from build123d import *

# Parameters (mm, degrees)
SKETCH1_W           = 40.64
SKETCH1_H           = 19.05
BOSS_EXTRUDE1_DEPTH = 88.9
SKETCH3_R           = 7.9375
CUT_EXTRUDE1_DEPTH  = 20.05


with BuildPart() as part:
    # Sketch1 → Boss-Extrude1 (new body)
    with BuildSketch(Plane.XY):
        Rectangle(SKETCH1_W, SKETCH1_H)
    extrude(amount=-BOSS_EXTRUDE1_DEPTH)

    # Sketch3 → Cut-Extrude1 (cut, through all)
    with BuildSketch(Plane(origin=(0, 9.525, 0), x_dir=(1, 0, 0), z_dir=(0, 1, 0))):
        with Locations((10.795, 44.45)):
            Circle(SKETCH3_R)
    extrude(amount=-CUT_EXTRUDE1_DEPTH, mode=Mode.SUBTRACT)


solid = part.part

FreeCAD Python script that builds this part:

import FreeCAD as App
import Part
import Sketcher

V = App.Vector
Q = App.Units.Quantity


def add_polygon(sketch, points):
    """Adds a closed chain of lines whose ends are joined by coincident constraints."""
    first, n = sketch.GeometryCount, len(points)
    for a, b in zip(points, points[1:] + points[:1]):
        sketch.addGeometry(Part.LineSegment(App.Vector(*a, 0), App.Vector(*b, 0)), False)
    for i in range(n):
        sketch.addConstraint(Sketcher.Constraint("Coincident", first + i, 2, first + (i + 1) % n, 1))

doc = App.newDocument("Part")
body = doc.addObject("PartDesign::Body", "Body")

# Sketch on XY plane
sketch1 = doc.addObject("Sketcher::SketchObject", "Sketch")
body.addObject(sketch1)
sketch1.AttachmentSupport = (doc.XY_Plane, [""])
sketch1.MapMode = "FlatFace"
add_polygon(sketch1, [(-20, 10), (-20, -10), (20, -10), (20, 10)])  # lines 0-3
sketch1.addConstraint([
    Sketcher.Constraint("Vertical", 0),
    Sketcher.Constraint("Horizontal", 1),
    Sketcher.Constraint("Vertical", 2),
    Sketcher.Constraint("Horizontal", 3),
    Sketcher.Constraint("Symmetric", 0, 2, 2, 2, -1, 1),
    Sketcher.Constraint("DistanceX", 1, 1, 1, 2, Q("1.6 in")),
    Sketcher.Constraint("DistanceY", 0, 2, 0, 1, Q("0.75 in")),
])
pad1 = doc.addObject("PartDesign::Pad", "Pad")
body.addObject(pad1)
pad1.Profile = sketch1
pad1.Length = Q("3.5 in")
pad1.Reversed = True

# Sketch on XZ plane
sketch2 = doc.addObject("Sketcher::SketchObject", "Sketch001")
body.addObject(sketch2)
sketch2.AttachmentSupport = (doc.XZ_Plane, [""])
sketch2.MapMode = "FlatFace"
sketch2.AttachmentOffset = App.Placement(V(0, 0, -0.375 * 25.4), App.Rotation())
sketch2.addGeometry(Part.Circle(V(11, -44, 0), V(0, 0, 1), 8), False)
sketch2.addConstraint([
    Sketcher.Constraint("Diameter", 0, Q("0.625 in")),
    Sketcher.Constraint("DistanceY", 0, 3, -1, 1, Q("1.75 in")),
    Sketcher.Constraint("DistanceX", -1, 1, 0, 3, Q("0.425 in")),
])
pocket1 = doc.addObject("PartDesign::Pocket", "Pocket")
body.addObject(pocket1)
pocket1.Profile = sketch2
pocket1.Type = "ThroughAll"
pocket1.Reversed = True

doc.recompute()
